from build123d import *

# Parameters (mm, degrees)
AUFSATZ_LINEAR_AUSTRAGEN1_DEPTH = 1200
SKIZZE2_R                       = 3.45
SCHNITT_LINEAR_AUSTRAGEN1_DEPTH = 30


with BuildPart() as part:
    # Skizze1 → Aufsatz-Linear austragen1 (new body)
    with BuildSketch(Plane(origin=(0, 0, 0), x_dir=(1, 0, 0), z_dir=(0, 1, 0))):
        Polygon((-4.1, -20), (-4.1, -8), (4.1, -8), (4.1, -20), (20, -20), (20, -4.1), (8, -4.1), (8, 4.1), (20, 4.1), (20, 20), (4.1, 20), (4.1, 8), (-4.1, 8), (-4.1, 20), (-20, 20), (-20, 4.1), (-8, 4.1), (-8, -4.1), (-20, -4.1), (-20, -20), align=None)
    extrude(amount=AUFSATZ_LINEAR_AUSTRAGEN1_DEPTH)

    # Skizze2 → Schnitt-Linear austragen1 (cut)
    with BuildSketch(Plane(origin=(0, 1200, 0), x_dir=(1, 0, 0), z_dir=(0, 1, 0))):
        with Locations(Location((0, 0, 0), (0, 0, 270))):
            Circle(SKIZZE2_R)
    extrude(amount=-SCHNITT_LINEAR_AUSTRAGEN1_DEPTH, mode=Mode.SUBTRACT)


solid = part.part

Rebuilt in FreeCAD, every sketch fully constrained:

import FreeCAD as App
import Part
import Sketcher
Q = App.Units.Quantity

doc = App.newDocument("Part")
params = doc.addObject("Spreadsheet::Sheet", "Params")
for row, (alias, value) in enumerate([
    ("sketch1_width", "12 mm"),
    ("sketch1_width2", "8.2 mm"),
    ("sketch1_width3", "15.9 mm"),
    ("pad1_length", "1200 mm"),
    ("sketch2_diameter", "6.9 mm"),
    ("pocket1_length", "30 mm"),
], start=1):
    params.set(f"A{row}", alias)
    params.set(f"B{row}", "=" + value)
    params.setAlias(f"B{row}", alias)

body = doc.addObject("PartDesign::Body", "Body")

# Sketch on XZ plane
sketch1 = body.newObject("Sketcher::SketchObject", "Sketch")
sketch1.AttachmentSupport = (doc.getObject("XZ_Plane"), [""])
sketch1.MapMode = "FlatFace"
sketch1.addGeometry(Part.LineSegment(App.Vector(-4, 20, 0), App.Vector(-4, 8, 0)), False)
sketch1.addGeometry(Part.LineSegment(App.Vector(-4, 8, 0), App.Vector(4, 8, 0)), False)
sketch1.addGeometry(Part.LineSegment(App.Vector(4, 8, 0), App.Vector(4, 20, 0)), False)
sketch1.addGeometry(Part.LineSegment(App.Vector(4, 20, 0), App.Vector(20, 20, 0)), False)
sketch1.addGeometry(Part.LineSegment(App.Vector(20, 20, 0), App.Vector(20, 4, 0)), False)
sketch1.addGeometry(Part.LineSegment(App.Vector(20, 4, 0), App.Vector(8, 4, 0)), False)
sketch1.addGeometry(Part.LineSegment(App.Vector(8, 4, 0), App.Vector(8, -4, 0)), False)
sketch1.addGeometry(Part.LineSegment(App.Vector(8, -4, 0), App.Vector(20, -4, 0)), False)
sketch1.addGeometry(Part.LineSegment(App.Vector(20, -4, 0), App.Vector(20, -20, 0)), False)
sketch1.addGeometry(Part.LineSegment(App.Vector(20, -20, 0), App.Vector(4, -20, 0)), False)
sketch1.addGeometry(Part.LineSegment(App.Vector(4, -20, 0), App.Vector(4, -8, 0)), False)
sketch1.addGeometry(Part.LineSegment(App.Vector(4, -8, 0), App.Vector(-4, -8, 0)), False)
sketch1.addGeometry(Part.LineSegment(App.Vector(-4, -8, 0), App.Vector(-4, -20, 0)), False)
sketch1.addGeometry(Part.LineSegment(App.Vector(-4, -20, 0), App.Vector(-20, -20, 0)), False)
sketch1.addGeometry(Part.LineSegment(App.Vector(-20, -20, 0), App.Vector(-20, -4, 0)), False)
sketch1.addGeometry(Part.LineSegment(App.Vector(-20, -4, 0), App.Vector(-8, -4, 0)), False)
sketch1.addGeometry(Part.LineSegment(App.Vector(-8, -4, 0), App.Vector(-8, 4, 0)), False)
sketch1.addGeometry(Part.LineSegment(App.Vector(-8, 4, 0), App.Vector(-20, 4, 0)), False)
sketch1.addGeometry(Part.LineSegment(App.Vector(-20, 4, 0), App.Vector(-20, 20, 0)), False)
sketch1.addGeometry(Part.LineSegment(App.Vector(-20, 20, 0), App.Vector(-4, 20, 0)), False)
sketch1.addConstraint(Sketcher.Constraint("Coincident", 0, 2, 1, 1))
sketch1.addConstraint(Sketcher.Constraint("Coincident", 1, 2, 2, 1))
sketch1.addConstraint(Sketcher.Constraint("Coincident", 2, 2, 3, 1))
sketch1.addConstraint(Sketcher.Constraint("Coincident", 3, 2, 4, 1))
sketch1.addConstraint(Sketcher.Constraint("Coincident", 4, 2, 5, 1))
sketch1.addConstraint(Sketcher.Constraint("Coincident", 5, 2, 6, 1))
sketch1.addConstraint(Sketcher.Constraint("Coincident", 6, 2, 7, 1))
sketch1.addConstraint(Sketcher.Constraint("Coincident", 7, 2, 8, 1))
sketch1.addConstraint(Sketcher.Constraint("Coincident", 8, 2, 9, 1))
sketch1.addConstraint(Sketcher.Constraint("Coincident", 9, 2, 10, 1))
sketch1.addConstraint(Sketcher.Constraint("Coincident", 10, 2, 11, 1))
sketch1.addConstraint(Sketcher.Constraint("Coincident", 11, 2, 12, 1))
sketch1.addConstraint(Sketcher.Constraint("Coincident", 12, 2, 13, 1))
sketch1.addConstraint(Sketcher.Constraint("Coincident", 13, 2, 14, 1))
sketch1.addConstraint(Sketcher.Constraint("Coincident", 14, 2, 15, 1))
sketch1.addConstraint(Sketcher.Constraint("Coincident", 15, 2, 16, 1))
sketch1.addConstraint(Sketcher.Constraint("Coincident", 16, 2, 17, 1))
sketch1.addConstraint(Sketcher.Constraint("Coincident", 17, 2, 18, 1))
sketch1.addConstraint(Sketcher.Constraint("Coincident", 18, 2, 19, 1))
sketch1.addConstraint(Sketcher.Constraint("Coincident", 19, 2, 0, 1))
sketch1.addConstraint(Sketcher.Constraint("Vertical", 0))
sketch1.addConstraint(Sketcher.Constraint("Horizontal", 1))
sketch1.addConstraint(Sketcher.Constraint("Vertical", 2))
sketch1.addConstraint(Sketcher.Constraint("Horizontal", 3))
sketch1.addConstraint(Sketcher.Constraint("Vertical", 4))
sketch1.addConstraint(Sketcher.Constraint("Horizontal", 5))
sketch1.addConstraint(Sketcher.Constraint("Vertical", 6))
sketch1.addConstraint(Sketcher.Constraint("Horizontal", 7))
sketch1.addConstraint(Sketcher.Constraint("Vertical", 8))
sketch1.addConstraint(Sketcher.Constraint("Horizontal", 9))
sketch1.addConstraint(Sketcher.Constraint("Vertical", 10))
sketch1.addConstraint(Sketcher.Constraint("Horizontal", 11))
sketch1.addConstraint(Sketcher.Constraint("Vertical", 12))
sketch1.addConstraint(Sketcher.Constraint("Horizontal", 13))
sketch1.addConstraint(Sketcher.Constraint("Vertical", 14))
sketch1.addConstraint(Sketcher.Constraint("Horizontal", 15))
sketch1.addConstraint(Sketcher.Constraint("Vertical", 16))
sketch1.addConstraint(Sketcher.Constraint("Horizontal", 17))
sketch1.addConstraint(Sketcher.Constraint("Vertical", 18))
sketch1.addConstraint(Sketcher.Constraint("Horizontal", 19))
sketch1.addConstraint(Sketcher.Constraint("Symmetric", 0, 2, 10, 2, -1, 1))
sketch1.addConstraint(Sketcher.Constraint("Symmetric", 2, 2, 12, 2, -1, 1))
sketch1.addConstraint(Sketcher.Constraint("Symmetric", 4, 2, 14, 2, -1, 1))
sketch1.addConstraint(Sketcher.Constraint("Symmetric", 6, 2, 16, 2, -1, 1))
sketch1.addConstraint(Sketcher.Constraint("Symmetric", 8, 2, 18, 2, -1, 1))
sketch1.addConstraint(Sketcher.Constraint("Symmetric", 9, 2, 12, 2, -2))
sketch1.addConstraint(Sketcher.Constraint("Symmetric", 7, 2, 14, 2, -2))
sketch1.addConstraint(Sketcher.Constraint("Equal", 17, 0))
sketch1.addConstraint(Sketcher.Constraint("Equal", 19, 4))
sketch1.addConstraint(Sketcher.Constraint("Equal", 11, 6))
sketch1.addConstraint(Sketcher.Constraint("DistanceX", 5, 2, 5, 1, Q("12 mm")))
sketch1.addConstraint(Sketcher.Constraint("DistanceX", 1, 1, 1, 2, Q("8.2 mm")))
sketch1.addConstraint(Sketcher.Constraint("DistanceX", 3, 1, 3, 2, Q("15.9 mm")))
sketch1.setExpression("Constraints[50]", "Params.sketch1_width")
sketch1.setExpression("Constraints[51]", "Params.sketch1_width2")
sketch1.setExpression("Constraints[52]", "Params.sketch1_width3")
pad1 = body.newObject("PartDesign::Pad", "Pad")
pad1.Profile = sketch1
pad1.setExpression("Length", "Params.pad1_length")
pad1.Reversed = True

# Sketch on XZ plane
sketch2 = body.newObject("Sketcher::SketchObject", "Sketch001")
sketch2.AttachmentSupport = (doc.getObject("XZ_Plane"), [""])
sketch2.MapMode = "FlatFace"
sketch2.AttachmentOffset = App.Placement(App.Vector(0, 0, -1200), App.Rotation())
sketch2.addGeometry(Part.Circle(App.Vector(0, 0, 0), App.Vector(0, 0, 1), 3.5), False)
sketch2.addConstraint(Sketcher.Constraint("Coincident", 0, 3, -1, 1))
sketch2.addConstraint(Sketcher.Constraint("Diameter", 0, Q("6.9 mm")))
sketch2.setExpression("Constraints[1]", "Params.sketch2_diameter")
pocket1 = body.newObject("PartDesign::Pocket", "Pocket")
pocket1.Profile = sketch2
pocket1.setExpression("Length", "Params.pocket1_length")
pocket1.Reversed = True

doc.recompute()
